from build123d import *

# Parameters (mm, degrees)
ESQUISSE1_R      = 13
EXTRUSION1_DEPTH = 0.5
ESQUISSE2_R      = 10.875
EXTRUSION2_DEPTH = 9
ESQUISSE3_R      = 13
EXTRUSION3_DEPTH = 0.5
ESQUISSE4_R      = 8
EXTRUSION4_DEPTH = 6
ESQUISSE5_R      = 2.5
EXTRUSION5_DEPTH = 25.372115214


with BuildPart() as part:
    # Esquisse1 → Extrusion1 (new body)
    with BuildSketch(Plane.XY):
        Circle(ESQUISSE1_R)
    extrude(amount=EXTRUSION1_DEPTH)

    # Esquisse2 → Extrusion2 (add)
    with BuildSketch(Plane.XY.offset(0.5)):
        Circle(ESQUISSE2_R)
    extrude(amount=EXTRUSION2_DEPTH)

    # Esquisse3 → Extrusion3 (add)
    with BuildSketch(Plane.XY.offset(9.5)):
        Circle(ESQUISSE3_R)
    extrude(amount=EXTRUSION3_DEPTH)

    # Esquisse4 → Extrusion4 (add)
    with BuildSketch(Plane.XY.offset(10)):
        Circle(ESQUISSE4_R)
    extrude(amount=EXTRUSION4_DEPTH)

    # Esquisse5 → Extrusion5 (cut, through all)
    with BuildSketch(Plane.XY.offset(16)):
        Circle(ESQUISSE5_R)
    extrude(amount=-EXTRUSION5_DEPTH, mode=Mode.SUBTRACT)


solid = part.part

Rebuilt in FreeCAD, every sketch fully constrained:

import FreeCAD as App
import Part
import Sketcher

V = App.Vector

doc = App.newDocument("Part")
body = doc.addObject("PartDesign::Body", "Body")

sketch1 = body.newObject("Sketcher::SketchObject", "Sketch")
sketch1.AttachmentSupport = (doc.getObject("XY_Plane"), [""])
sketch1.MapMode = "FlatFace"
sketch1.addGeometry(Part.Circle(V(0, 0, 0), V(0, 0, 1), 13), False)
sketch1.addConstraint([
    Sketcher.Constraint("Coincident", 0, 3, -1, 1),
    Sketcher.Constraint("Diameter", 0, 26.0),
])
pad1 = body.newObject("PartDesign::Pad", "Pad")
pad1.Profile = sketch1
pad1.Length = 0.5

sketch2 = body.newObject("Sketcher::SketchObject", "Sketch001")
sketch2.AttachmentSupport = (doc.getObject("XY_Plane"), [""])
sketch2.MapMode = "FlatFace"
sketch2.AttachmentOffset = App.Placement(V(0, 0, 0.5), App.Rotation())
sketch2.addGeometry(Part.Circle(V(0, 0, 0), V(0, 0, 1), 10.875), False)
sketch2.addConstraint([
    Sketcher.Constraint("Coincident", 0, 3, -1, 1),
    Sketcher.Constraint("Diameter", 0, 21.75),
])
pad2 = body.newObject("PartDesign::Pad", "Pad001")
pad2.Profile = sketch2
pad2.Length = 9

sketch3 = body.newObject("Sketcher::SketchObject", "Sketch002")
sketch3.AttachmentSupport = (doc.getObject("XY_Plane"), [""])
sketch3.MapMode = "FlatFace"
sketch3.AttachmentOffset = App.Placement(V(0, 0, 9.5), App.Rotation())
sketch3.addGeometry(Part.Circle(V(0, 0, 0), V(0, 0, 1), 13), False)
sketch3.addConstraint([
    Sketcher.Constraint("Coincident", 0, 3, -1, 1),
    Sketcher.Constraint("Diameter", 0, 26.0),
])
pad3 = body.newObject("PartDesign::Pad", "Pad002")
pad3.Profile = sketch3
pad3.Length = 0.5

sketch4 = body.newObject("Sketcher::SketchObject", "Sketch003")
sketch4.AttachmentSupport = (doc.getObject("XY_Plane"), [""])
sketch4.MapMode = "FlatFace"
sketch4.AttachmentOffset = App.Placement(V(0, 0, 10), App.Rotation())
sketch4.addGeometry(Part.Circle(V(0, 0, 0), V(0, 0, 1), 8), False)
sketch4.addConstraint([
    Sketcher.Constraint("Coincident", 0, 3, -1, 1),
    Sketcher.Constraint("Diameter", 0, 16.0),
])
pad4 = body.newObject("PartDesign::Pad", "Pad003")
pad4.Profile = sketch4
pad4.Length = 6

sketch5 = body.newObject("Sketcher::SketchObject", "Sketch004")
sketch5.AttachmentSupport = (doc.getObject("XY_Plane"), [""])
sketch5.MapMode = "FlatFace"
sketch5.AttachmentOffset = App.Placement(V(0, 0, 16), App.Rotation())
sketch5.addGeometry(Part.Circle(V(0, 0, 0), V(0, 0, 1), 2.5), False)
sketch5.addConstraint([
    Sketcher.Constraint("Coincident", 0, 3, -1, 1),
    Sketcher.Constraint("Diameter", 0, 5.0),
])
pocket1 = body.newObject("PartDesign::Pocket", "Pocket")
pocket1.Profile = sketch5
pocket1.Type = "ThroughAll"

doc.recompute()
